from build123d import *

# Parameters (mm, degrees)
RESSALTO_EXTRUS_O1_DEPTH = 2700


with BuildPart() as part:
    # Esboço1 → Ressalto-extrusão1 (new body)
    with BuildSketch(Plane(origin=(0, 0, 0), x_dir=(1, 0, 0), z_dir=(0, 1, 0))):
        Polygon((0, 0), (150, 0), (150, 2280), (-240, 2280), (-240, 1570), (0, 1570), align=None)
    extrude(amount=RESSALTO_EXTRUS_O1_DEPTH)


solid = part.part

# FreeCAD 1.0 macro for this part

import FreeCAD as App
import Part
import Sketcher
from FreeCAD import Vector
Q = App.Units.Quantity

doc = App.newDocument("Part")
body = doc.addObject("PartDesign::Body", "Body")

# Sketch on XZ plane
sketch1 = body.newObject("Sketcher::SketchObject", "Sketch")
sketch1.AttachmentSupport = (doc.getObject("XZ_Plane"), [""])
sketch1.MapMode = "FlatFace"
sketch1.addGeometry([
    Part.LineSegment(Vector(0, 0, 0), Vector(150, 0, 0)),  # 0
    Part.LineSegment(Vector(150, 0, 0), Vector(150, -2280, 0)),  # 1
    Part.LineSegment(Vector(150, -2280, 0), Vector(-240, -2280, 0)),  # 2
    Part.LineSegment(Vector(-240, -2280, 0), Vector(-240, -1570, 0)),  # 3
    Part.LineSegment(Vector(-240, -1570, 0), Vector(0, -1570, 0)),  # 4
    Part.LineSegment(Vector(0, -1570, 0), Vector(0, 0, 0)),  # 5
], False)
sketch1.addConstraint([
    Sketcher.Constraint("Coincident", 0, 2, 1, 1),
    Sketcher.Constraint("Coincident", 1, 2, 2, 1),
    Sketcher.Constraint("Coincident", 2, 2, 3, 1),
    Sketcher.Constraint("Coincident", 3, 2, 4, 1),
    Sketcher.Constraint("Coincident", 4, 2, 5, 1),
    Sketcher.Constraint("Coincident", 5, 2, 0, 1),
    Sketcher.Constraint("Horizontal", 0),
    Sketcher.Constraint("Vertical", 1),
    Sketcher.Constraint("Horizontal", 2),
    Sketcher.Constraint("Vertical", 3),
    Sketcher.Constraint("Horizontal", 4),
    Sketcher.Constraint("Vertical", 5),
    Sketcher.Constraint("Coincident", 5, 2, -1, 1),
    Sketcher.Constraint("DistanceX", 0, 1, 0, 2, Q("150 mm")),
    Sketcher.Constraint("DistanceX", 2, 2, 2, 1, Q("390 mm")),
    Sketcher.Constraint("DistanceY", 1, 2, 1, 1, Q("2280 mm")),
    Sketcher.Constraint("DistanceY", 3, 1, 3, 2, Q("710 mm")),
])
pad1 = body.newObject("PartDesign::Pad", "Pad")
pad1.Profile = sketch1
pad1.Length = 2700
pad1.Reversed = True

doc.recompute()
